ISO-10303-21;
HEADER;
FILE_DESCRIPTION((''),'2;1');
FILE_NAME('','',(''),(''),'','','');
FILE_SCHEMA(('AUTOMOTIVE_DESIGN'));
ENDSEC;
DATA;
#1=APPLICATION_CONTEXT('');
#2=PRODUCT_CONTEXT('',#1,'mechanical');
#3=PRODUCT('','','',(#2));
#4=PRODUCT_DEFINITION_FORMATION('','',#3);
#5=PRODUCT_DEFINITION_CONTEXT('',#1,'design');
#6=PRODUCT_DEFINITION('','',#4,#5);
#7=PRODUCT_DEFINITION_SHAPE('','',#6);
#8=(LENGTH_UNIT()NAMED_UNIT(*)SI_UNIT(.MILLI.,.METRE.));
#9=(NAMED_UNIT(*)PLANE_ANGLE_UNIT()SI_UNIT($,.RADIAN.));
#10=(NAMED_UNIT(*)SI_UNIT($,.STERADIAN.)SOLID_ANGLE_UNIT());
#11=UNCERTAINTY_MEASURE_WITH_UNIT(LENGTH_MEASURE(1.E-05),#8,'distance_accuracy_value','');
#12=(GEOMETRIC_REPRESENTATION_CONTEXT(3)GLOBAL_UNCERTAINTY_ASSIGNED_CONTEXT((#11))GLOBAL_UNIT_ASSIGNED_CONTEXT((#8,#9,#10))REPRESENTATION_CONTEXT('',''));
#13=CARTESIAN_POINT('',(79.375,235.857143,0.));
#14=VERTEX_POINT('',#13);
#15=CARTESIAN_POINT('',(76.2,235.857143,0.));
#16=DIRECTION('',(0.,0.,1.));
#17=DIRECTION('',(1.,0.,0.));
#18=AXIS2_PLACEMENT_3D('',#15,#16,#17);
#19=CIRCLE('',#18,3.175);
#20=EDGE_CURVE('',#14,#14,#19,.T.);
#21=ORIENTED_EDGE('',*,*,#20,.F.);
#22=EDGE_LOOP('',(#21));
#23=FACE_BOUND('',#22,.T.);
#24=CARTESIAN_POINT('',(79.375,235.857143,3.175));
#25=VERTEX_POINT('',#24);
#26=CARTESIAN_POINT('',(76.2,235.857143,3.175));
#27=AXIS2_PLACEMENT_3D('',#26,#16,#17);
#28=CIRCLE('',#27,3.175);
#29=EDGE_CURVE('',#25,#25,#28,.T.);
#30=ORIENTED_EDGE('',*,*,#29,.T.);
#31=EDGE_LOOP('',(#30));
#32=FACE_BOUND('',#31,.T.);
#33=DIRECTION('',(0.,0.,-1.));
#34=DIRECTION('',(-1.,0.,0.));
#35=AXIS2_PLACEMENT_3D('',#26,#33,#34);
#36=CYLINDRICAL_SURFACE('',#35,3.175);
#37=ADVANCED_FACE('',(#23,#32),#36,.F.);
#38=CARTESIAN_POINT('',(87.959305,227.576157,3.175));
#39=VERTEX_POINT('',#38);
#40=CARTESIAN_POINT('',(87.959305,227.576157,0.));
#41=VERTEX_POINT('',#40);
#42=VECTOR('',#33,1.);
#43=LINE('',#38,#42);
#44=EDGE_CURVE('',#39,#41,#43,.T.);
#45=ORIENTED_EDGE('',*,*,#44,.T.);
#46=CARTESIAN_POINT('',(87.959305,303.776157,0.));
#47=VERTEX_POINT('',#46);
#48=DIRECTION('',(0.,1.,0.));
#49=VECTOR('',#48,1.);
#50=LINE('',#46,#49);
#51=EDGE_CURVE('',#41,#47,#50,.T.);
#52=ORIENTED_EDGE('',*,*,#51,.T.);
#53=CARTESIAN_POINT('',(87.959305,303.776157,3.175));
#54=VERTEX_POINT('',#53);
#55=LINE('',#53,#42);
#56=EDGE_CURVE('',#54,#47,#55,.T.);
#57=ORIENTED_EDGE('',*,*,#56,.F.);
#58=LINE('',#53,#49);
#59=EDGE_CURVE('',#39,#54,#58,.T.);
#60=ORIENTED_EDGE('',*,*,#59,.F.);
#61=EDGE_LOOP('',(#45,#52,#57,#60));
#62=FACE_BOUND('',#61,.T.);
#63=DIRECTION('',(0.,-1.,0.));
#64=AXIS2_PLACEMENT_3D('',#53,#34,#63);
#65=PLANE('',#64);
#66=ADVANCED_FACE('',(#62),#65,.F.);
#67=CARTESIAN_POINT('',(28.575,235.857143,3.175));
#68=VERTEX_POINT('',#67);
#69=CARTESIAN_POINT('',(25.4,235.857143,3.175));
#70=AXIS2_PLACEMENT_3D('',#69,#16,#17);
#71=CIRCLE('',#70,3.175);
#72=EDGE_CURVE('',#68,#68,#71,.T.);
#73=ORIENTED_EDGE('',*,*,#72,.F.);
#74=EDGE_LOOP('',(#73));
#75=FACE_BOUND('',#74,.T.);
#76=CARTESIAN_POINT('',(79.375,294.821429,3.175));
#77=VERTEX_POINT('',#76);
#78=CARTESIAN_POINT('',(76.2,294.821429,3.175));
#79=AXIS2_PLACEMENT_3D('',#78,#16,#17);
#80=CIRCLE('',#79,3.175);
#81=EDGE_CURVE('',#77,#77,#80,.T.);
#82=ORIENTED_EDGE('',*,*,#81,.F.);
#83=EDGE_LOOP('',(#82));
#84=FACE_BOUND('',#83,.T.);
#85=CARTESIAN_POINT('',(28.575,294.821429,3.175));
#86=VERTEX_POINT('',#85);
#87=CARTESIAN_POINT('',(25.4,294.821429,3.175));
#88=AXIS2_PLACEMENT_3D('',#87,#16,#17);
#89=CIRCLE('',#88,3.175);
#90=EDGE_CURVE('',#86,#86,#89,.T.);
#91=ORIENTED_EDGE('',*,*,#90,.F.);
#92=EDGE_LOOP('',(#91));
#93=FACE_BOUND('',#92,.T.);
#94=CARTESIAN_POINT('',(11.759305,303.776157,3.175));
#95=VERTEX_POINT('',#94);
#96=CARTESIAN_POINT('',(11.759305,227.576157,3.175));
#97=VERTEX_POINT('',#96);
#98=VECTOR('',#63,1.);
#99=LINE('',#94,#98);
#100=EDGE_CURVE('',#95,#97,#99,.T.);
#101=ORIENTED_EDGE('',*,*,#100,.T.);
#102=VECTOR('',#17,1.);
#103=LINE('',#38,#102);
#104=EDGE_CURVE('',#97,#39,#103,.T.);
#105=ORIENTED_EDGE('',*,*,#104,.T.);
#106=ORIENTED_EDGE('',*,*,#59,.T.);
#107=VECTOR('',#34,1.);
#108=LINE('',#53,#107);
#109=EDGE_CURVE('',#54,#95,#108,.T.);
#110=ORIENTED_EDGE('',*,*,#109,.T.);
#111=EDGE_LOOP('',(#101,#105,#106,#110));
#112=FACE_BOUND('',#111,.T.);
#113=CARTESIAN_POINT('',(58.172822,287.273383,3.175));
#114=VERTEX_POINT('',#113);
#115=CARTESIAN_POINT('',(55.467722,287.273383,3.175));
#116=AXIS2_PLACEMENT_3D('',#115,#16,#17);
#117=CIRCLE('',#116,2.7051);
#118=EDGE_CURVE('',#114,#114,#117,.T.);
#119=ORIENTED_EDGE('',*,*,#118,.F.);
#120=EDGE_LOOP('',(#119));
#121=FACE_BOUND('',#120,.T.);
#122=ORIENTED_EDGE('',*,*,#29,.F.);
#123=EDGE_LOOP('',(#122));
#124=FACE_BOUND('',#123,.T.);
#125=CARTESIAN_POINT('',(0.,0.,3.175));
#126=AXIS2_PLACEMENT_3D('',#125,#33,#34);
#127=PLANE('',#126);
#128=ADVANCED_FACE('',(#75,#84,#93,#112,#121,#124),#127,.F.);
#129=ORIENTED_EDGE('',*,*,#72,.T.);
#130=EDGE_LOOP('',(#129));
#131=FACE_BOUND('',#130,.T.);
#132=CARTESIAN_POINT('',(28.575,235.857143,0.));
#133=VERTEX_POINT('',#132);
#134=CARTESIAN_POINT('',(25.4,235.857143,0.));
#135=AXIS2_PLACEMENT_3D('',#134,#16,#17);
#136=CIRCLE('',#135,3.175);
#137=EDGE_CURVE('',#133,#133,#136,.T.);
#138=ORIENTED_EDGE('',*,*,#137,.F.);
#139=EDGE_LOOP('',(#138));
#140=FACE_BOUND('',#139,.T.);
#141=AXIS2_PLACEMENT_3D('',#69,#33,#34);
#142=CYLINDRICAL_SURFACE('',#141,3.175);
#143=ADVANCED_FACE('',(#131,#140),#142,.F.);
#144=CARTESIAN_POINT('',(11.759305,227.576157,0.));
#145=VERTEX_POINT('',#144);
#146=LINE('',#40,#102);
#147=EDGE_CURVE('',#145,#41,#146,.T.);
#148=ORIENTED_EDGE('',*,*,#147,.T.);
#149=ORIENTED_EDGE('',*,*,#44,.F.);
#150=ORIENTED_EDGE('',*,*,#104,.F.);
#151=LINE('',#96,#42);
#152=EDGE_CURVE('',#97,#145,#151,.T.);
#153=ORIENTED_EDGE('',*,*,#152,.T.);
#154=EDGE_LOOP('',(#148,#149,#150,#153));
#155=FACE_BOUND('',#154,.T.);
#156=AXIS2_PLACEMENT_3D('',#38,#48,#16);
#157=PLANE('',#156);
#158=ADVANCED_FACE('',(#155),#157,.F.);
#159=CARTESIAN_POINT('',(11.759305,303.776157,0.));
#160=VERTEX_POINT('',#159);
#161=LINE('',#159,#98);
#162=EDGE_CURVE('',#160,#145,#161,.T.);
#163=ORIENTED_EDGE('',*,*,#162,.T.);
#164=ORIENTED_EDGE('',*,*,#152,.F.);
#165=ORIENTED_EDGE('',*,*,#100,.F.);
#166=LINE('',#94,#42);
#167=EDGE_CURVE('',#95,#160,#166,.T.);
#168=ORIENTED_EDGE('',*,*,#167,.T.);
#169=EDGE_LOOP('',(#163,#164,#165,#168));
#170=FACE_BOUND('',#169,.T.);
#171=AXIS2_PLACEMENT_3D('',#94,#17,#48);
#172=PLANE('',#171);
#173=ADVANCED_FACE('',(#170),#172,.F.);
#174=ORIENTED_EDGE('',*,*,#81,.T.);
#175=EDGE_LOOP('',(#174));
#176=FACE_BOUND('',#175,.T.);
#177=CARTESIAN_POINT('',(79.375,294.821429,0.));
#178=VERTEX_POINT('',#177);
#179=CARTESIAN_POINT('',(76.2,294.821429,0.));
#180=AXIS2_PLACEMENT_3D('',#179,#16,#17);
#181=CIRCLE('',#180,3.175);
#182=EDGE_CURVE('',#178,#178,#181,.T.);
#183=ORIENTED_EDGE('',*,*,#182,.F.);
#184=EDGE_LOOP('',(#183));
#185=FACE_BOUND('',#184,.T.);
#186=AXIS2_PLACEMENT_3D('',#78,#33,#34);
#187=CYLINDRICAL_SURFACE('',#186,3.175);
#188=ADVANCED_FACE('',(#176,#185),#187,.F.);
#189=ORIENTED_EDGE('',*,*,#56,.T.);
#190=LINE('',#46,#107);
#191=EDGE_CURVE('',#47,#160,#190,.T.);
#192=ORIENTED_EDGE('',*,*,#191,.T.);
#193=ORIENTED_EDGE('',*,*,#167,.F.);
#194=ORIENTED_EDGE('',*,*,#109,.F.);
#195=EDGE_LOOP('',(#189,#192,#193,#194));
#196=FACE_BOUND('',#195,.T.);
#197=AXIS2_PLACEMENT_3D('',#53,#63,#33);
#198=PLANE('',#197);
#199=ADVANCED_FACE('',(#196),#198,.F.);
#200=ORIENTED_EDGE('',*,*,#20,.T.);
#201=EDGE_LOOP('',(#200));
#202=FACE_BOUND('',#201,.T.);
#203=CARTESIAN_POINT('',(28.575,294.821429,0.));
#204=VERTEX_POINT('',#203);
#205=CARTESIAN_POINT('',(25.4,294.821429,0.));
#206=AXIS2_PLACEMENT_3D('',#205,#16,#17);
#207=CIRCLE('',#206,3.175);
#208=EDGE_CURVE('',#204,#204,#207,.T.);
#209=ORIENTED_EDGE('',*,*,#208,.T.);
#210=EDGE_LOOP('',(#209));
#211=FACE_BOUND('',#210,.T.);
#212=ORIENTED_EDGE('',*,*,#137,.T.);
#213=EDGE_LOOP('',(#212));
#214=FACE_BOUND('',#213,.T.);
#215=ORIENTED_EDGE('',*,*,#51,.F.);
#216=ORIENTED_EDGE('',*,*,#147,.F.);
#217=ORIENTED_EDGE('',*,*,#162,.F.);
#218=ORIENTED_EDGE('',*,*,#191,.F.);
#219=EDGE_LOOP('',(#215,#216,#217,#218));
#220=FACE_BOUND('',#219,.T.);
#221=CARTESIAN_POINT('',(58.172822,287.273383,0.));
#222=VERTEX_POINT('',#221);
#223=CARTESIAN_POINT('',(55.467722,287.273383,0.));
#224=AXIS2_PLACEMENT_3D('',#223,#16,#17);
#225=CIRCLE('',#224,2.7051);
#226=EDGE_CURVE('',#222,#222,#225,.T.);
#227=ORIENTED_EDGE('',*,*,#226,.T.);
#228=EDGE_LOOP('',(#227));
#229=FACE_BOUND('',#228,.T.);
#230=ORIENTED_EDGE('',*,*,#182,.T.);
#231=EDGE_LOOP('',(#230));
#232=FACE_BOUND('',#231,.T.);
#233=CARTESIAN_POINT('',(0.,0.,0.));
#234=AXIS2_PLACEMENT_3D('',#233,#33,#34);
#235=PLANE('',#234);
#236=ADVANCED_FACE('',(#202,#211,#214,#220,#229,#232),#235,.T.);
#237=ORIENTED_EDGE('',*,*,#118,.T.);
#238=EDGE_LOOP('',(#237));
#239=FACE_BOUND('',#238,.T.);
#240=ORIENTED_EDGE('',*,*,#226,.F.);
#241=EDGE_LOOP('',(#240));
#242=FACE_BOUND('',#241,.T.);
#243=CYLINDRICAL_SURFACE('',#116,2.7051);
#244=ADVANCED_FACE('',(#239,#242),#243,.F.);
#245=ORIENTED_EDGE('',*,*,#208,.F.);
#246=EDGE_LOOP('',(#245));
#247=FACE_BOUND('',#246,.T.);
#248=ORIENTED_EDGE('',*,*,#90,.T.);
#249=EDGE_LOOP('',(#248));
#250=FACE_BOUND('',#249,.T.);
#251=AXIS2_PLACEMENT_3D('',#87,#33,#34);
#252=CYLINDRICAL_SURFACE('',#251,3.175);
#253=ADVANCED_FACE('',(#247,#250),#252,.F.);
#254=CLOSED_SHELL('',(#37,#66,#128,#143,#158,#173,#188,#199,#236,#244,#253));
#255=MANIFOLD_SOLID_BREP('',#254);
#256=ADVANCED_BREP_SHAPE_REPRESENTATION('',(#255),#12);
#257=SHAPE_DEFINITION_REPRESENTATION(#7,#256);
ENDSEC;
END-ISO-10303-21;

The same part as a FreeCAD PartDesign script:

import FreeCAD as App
import Part
import Sketcher

V = App.Vector
Q = App.Units.Quantity

doc = App.newDocument("Part")
body = doc.addObject("PartDesign::Body", "Body")

# Sketch on XY plane
sketch1 = body.newObject("Sketcher::SketchObject", "Sketch")
sketch1.AttachmentSupport = (doc.getObject("XY_Plane"), [""])
sketch1.MapMode = "FlatFace"
sketch1.addGeometry([
    Part.LineSegment(V(11.759305, 303.776157, 0), V(11.759305, 227.576157, 0)),  # 0
    Part.LineSegment(V(11.759305, 227.576157, 0), V(87.959305, 227.576157, 0)),  # 1
    Part.LineSegment(V(87.959305, 227.576157, 0), V(87.959305, 303.776157, 0)),  # 2
    Part.LineSegment(V(87.959305, 303.776157, 0), V(11.759305, 303.776157, 0)),  # 3
    Part.Circle(V(25.4, 235.857143, 0), V(0, 0, 1), 3.175),  # 4
    Part.Circle(V(76.2, 235.857143, 0), V(0, 0, 1), 3.175),  # 5
    Part.Circle(V(25.4, 294.821429, 0), V(0, 0, 1), 3.175),  # 6
    Part.Circle(V(76.2, 294.821429, 0), V(0, 0, 1), 3.175),  # 7
], False)
sketch1.addConstraint([
    Sketcher.Constraint("Coincident", 0, 2, 1, 1),
    Sketcher.Constraint("Coincident", 1, 2, 2, 1),
    Sketcher.Constraint("Coincident", 2, 2, 3, 1),
    Sketcher.Constraint("Coincident", 3, 2, 0, 1),
    Sketcher.Constraint("Vertical", 0),
    Sketcher.Constraint("Horizontal", 1),
    Sketcher.Constraint("Vertical", 2),
    Sketcher.Constraint("Horizontal", 3),
    Sketcher.Constraint("Equal", 4, 5),
    Sketcher.Constraint("Equal", 5, 6),
    Sketcher.Constraint("Equal", 6, 7),
    Sketcher.Constraint("Horizontal", 4, 3, 5, 3),
    Sketcher.Constraint("Horizontal", 6, 3, 7, 3),
    Sketcher.Constraint("Vertical", 4, 3, 6, 3),
    Sketcher.Constraint("Vertical", 5, 3, 7, 3),
    Sketcher.Constraint("Equal", 3, 0),
    Sketcher.Constraint("Diameter", 4, Q("0.25 in")),
    Sketcher.Constraint("DistanceX", 1, 1, 1, 2, Q("3 in")),
    Sketcher.Constraint("DistanceX", -1, 1, 4, 3, Q("1 in")),
    Sketcher.Constraint("DistanceX", -1, 1, 5, 3, Q("3 in")),
    Sketcher.Constraint("DistanceY", -1, 1, 6, 3, Q("294.821429 mm")),
    Sketcher.Constraint("DistanceY", 0, 2, 6, 3, Q("67.245271 mm")),
    Sketcher.Constraint("DistanceY", -1, 1, 4, 3, Q("235.857143 mm")),
    Sketcher.Constraint("DistanceX", -1, 1, 0, 2, Q("11.759305 mm")),
])
pad1 = body.newObject("PartDesign::Pad", "Pad")
pad1.Profile = sketch1
pad1.Length = Q("0.125 in")

# Sketch on XY plane
sketch2 = body.newObject("Sketcher::SketchObject", "Sketch001")
sketch2.AttachmentSupport = (doc.getObject("XY_Plane"), [""])
sketch2.MapMode = "FlatFace"
sketch2.AttachmentOffset = App.Placement(V(0, 0, 0.125 * 25.4), App.Rotation())
sketch2.addGeometry(Part.Circle(V(55.467722, 287.273383, 0), V(0, 0, 1), 2.7051), False)
sketch2.addConstraint([
    Sketcher.Constraint("Diameter", 0, Q("0.213 in")),
    Sketcher.Constraint("DistanceX", -1, 1, 0, 3, Q("55.467722 mm")),
    Sketcher.Constraint("DistanceY", -1, 1, 0, 3, Q("287.273383 mm")),
])
doc.recompute()
hole = body.newObject("PartDesign::Hole", "Hole")
hole.Profile = sketch2
hole.ThreadType = "None"
hole.Diameter = Q("0.213 in")
hole.DepthType = "ThroughAll"

doc.recompute()
